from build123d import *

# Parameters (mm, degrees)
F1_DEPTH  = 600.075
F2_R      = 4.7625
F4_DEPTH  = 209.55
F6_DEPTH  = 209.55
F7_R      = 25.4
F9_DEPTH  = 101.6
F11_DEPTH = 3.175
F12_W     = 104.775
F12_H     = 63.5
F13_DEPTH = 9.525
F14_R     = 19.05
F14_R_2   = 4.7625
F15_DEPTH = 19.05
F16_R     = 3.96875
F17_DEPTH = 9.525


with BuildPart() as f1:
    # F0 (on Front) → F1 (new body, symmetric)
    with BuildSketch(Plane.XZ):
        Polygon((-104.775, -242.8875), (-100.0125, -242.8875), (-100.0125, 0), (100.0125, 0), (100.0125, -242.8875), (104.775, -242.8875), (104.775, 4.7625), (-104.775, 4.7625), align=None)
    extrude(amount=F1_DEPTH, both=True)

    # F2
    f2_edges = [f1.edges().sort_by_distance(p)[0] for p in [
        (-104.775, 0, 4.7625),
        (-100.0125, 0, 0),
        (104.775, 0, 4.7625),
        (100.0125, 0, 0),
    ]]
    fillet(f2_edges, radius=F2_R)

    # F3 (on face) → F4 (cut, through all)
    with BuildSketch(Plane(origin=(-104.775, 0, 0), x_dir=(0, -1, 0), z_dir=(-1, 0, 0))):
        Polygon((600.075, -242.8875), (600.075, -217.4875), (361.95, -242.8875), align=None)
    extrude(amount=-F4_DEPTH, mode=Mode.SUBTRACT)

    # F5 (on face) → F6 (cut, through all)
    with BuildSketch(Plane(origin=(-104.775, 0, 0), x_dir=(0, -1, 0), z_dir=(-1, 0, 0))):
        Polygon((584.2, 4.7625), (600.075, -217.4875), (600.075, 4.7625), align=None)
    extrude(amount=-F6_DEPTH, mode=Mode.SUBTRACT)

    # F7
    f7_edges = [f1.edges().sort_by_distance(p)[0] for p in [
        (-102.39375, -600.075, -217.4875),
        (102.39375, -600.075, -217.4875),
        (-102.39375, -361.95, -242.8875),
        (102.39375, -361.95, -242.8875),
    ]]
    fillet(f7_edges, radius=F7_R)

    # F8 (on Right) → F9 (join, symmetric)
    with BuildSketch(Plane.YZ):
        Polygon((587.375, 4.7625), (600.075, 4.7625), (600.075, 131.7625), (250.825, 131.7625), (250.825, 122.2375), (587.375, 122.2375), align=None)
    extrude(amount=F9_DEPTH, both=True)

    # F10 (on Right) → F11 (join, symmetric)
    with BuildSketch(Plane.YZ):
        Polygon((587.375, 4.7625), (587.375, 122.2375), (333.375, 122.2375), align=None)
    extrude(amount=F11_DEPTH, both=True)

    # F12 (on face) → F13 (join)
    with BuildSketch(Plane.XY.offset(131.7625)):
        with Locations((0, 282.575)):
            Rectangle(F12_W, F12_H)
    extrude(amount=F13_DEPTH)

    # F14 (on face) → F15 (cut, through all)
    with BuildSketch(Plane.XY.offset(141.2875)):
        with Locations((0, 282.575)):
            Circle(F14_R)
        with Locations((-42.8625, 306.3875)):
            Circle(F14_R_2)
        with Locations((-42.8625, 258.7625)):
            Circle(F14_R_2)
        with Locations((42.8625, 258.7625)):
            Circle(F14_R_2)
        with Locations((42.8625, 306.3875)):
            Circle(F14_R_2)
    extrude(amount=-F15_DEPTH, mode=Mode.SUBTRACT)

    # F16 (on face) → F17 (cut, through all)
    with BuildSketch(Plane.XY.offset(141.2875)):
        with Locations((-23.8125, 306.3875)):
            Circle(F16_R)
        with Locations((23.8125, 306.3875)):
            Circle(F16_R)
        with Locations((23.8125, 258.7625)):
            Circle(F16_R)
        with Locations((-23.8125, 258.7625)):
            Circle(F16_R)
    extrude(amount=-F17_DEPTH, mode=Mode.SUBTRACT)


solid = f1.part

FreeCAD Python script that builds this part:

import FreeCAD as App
import Part
import Sketcher
Q = App.Units.Quantity


def edges_at(feature, points):
    """Names of the edges that pass closest to the given points."""
    edges = feature.Shape.Edges
    near = lambda p: min(range(len(edges)), key=lambda i: edges[i].distToShape(Part.Vertex(*p))[0])
    return sorted({f"Edge{near(p) + 1}" for p in points})

doc = App.newDocument("Part")
body = doc.addObject("PartDesign::Body", "Body")

# Sketch on XZ plane
sketch1 = body.newObject("Sketcher::SketchObject", "Sketch")
sketch1.AttachmentSupport = (doc.getObject("XZ_Plane"), [""])
sketch1.MapMode = "FlatFace"
sketch1.addGeometry([
    Part.LineSegment(App.Vector(-104.775, -242.8875, 0), App.Vector(-100.0125, -242.8875, 0)),  # 0
    Part.LineSegment(App.Vector(-100.0125, -242.8875, 0), App.Vector(-100.0125, 0, 0)),  # 1
    Part.LineSegment(App.Vector(-100.0125, 0, 0), App.Vector(100.0125, 0, 0)),  # 2
    Part.LineSegment(App.Vector(100.0125, 0, 0), App.Vector(100.0125, -242.8875, 0)),  # 3
    Part.LineSegment(App.Vector(100.0125, -242.8875, 0), App.Vector(104.775, -242.8875, 0)),  # 4
    Part.LineSegment(App.Vector(104.775, -242.8875, 0), App.Vector(104.775, 4.7625, 0)),  # 5
    Part.LineSegment(App.Vector(104.775, 4.7625, 0), App.Vector(-104.775, 4.7625, 0)),  # 6
    Part.LineSegment(App.Vector(-104.775, 4.7625, 0), App.Vector(-104.775, -242.8875, 0)),  # 7
], False)
sketch1.addConstraint([
    Sketcher.Constraint("Coincident", 0, 2, 1, 1),
    Sketcher.Constraint("Coincident", 1, 2, 2, 1),
    Sketcher.Constraint("Coincident", 2, 2, 3, 1),
    Sketcher.Constraint("Coincident", 3, 2, 4, 1),
    Sketcher.Constraint("Coincident", 4, 2, 5, 1),
    Sketcher.Constraint("Coincident", 5, 2, 6, 1),
    Sketcher.Constraint("Coincident", 6, 2, 7, 1),
    Sketcher.Constraint("Coincident", 7, 2, 0, 1),
    Sketcher.Constraint("Horizontal", 0),
    Sketcher.Constraint("Vertical", 1),
    Sketcher.Constraint("Horizontal", 2),
    Sketcher.Constraint("Vertical", 3),
    Sketcher.Constraint("Horizontal", 4),
    Sketcher.Constraint("Vertical", 5),
    Sketcher.Constraint("Horizontal", 6),
    Sketcher.Constraint("Vertical", 7),
    Sketcher.Constraint("Symmetric", 1, 2, 2, 2, -1, 1),
    Sketcher.Constraint("Symmetric", 4, 2, 7, 2, -2),
    Sketcher.Constraint("DistanceX", 6, 2, 6, 1, Q("8.25 in")),
    Sketcher.Constraint("DistanceY", 5, 1, 5, 2, Q("9.75 in")),
    Sketcher.Constraint("DistanceX", 0, 1, 0, 2, Q("0.1875 in")),
    Sketcher.Constraint("DistanceY", 1, 1, 1, 2, Q("9.5625 in")),
])
pad1 = body.newObject("PartDesign::Pad", "Pad")
pad1.Profile = sketch1
pad1.Length = Q("47.25 in")
pad1.Midplane = True
doc.recompute()

fillet = body.newObject("PartDesign::Fillet", "Fillet")
fillet.Base = (pad1, edges_at(pad1, [
    (-104.775, 0, 4.763),
    (-100.013, 0, 0),
    (104.775, 0, 4.763),
    (100.013, 0, 0),
]))
fillet.Radius = Q("0.1875 in")

# Sketch on YZ plane
sketch2 = body.newObject("Sketcher::SketchObject", "Sketch001")
sketch2.AttachmentSupport = (doc.getObject("YZ_Plane"), [""])
sketch2.MapMode = "FlatFace"
sketch2.AttachmentOffset = App.Placement(App.Vector(0, 0, -4.125 * 25.4), App.Rotation())
sketch2.addGeometry([
    Part.LineSegment(App.Vector(-600.075, -242.8875, 0), App.Vector(-600.075, -217.4875, 0)),
    Part.LineSegment(App.Vector(-600.075, -217.4875, 0), App.Vector(-361.95, -242.8875, 0)),
    Part.LineSegment(App.Vector(-361.95, -242.8875, 0), App.Vector(-600.075, -242.8875, 0)),
], False)
sketch2.addConstraint([
    Sketcher.Constraint("Coincident", 0, 2, 1, 1),
    Sketcher.Constraint("Coincident", 1, 2, 2, 1),
    Sketcher.Constraint("Coincident", 2, 2, 0, 1),
    Sketcher.Constraint("Vertical", 0),
    Sketcher.Constraint("Horizontal", 2),
    Sketcher.Constraint("DistanceY", 0, 1, 0, 2, Q("1 in")),
    Sketcher.Constraint("DistanceX", 2, 2, 2, 1, Q("9.375 in")),
    Sketcher.Constraint("DistanceX", 1, 2, -1, 1, Q("14.25 in")),
    Sketcher.Constraint("DistanceY", 0, 2, -1, 1, Q("8.5625 in")),
])
pocket1 = body.newObject("PartDesign::Pocket", "Pocket")
pocket1.Profile = sketch2
pocket1.Type = "ThroughAll"
pocket1.Reversed = True

# Sketch on YZ plane
sketch3 = body.newObject("Sketcher::SketchObject", "Sketch002")
sketch3.AttachmentSupport = (doc.getObject("YZ_Plane"), [""])
sketch3.MapMode = "FlatFace"
sketch3.AttachmentOffset = App.Placement(App.Vector(0, 0, -4.125 * 25.4), App.Rotation())
sketch3.addGeometry([
    Part.LineSegment(App.Vector(-584.2, 4.7625, 0), App.Vector(-600.075, -217.4875, 0)),
    Part.LineSegment(App.Vector(-600.075, -217.4875, 0), App.Vector(-600.075, 4.7625, 0)),
    Part.LineSegment(App.Vector(-600.075, 4.7625, 0), App.Vector(-584.2, 4.7625, 0)),
], False)
sketch3.addConstraint([
    Sketcher.Constraint("Coincident", 0, 2, 1, 1),
    Sketcher.Constraint("Coincident", 1, 2, 2, 1),
    Sketcher.Constraint("Coincident", 2, 2, 0, 1),
    Sketcher.Constraint("Vertical", 1),
    Sketcher.Constraint("Horizontal", 2),
    Sketcher.Constraint("DistanceX", 2, 2, -1, 1, Q("23 in")),
    Sketcher.Constraint("DistanceY", 1, 1, 1, 2, Q("8.75 in")),
    Sketcher.Constraint("DistanceX", 2, 1, 2, 2, Q("0.625 in")),
    Sketcher.Constraint("DistanceY", 0, 2, -1, 1, Q("8.5625 in")),
])
pocket2 = body.newObject("PartDesign::Pocket", "Pocket001")
pocket2.Profile = sketch3
pocket2.Type = "ThroughAll"
pocket2.Reversed = True
doc.recompute()

fillet2 = body.newObject("PartDesign::Fillet", "Fillet001")
fillet2.Base = (pocket2, edges_at(pocket2, [
    (-102.394, -600.075, -217.488),
    (102.394, -600.075, -217.488),
    (-102.394, -361.95, -242.887),
    (102.394, -361.95, -242.887),
]))
fillet2.Radius = Q("1 in")

# Sketch on YZ plane
sketch4 = body.newObject("Sketcher::SketchObject", "Sketch003")
sketch4.AttachmentSupport = (doc.getObject("YZ_Plane"), [""])
sketch4.MapMode = "FlatFace"
sketch4.addGeometry([
    Part.LineSegment(App.Vector(587.375, 4.7625, 0), App.Vector(600.075, 4.7625, 0)),  # 0
    Part.LineSegment(App.Vector(600.075, 4.7625, 0), App.Vector(600.075, 131.7625, 0)),  # 1
    Part.LineSegment(App.Vector(600.075, 131.7625, 0), App.Vector(250.825, 131.7625, 0)),  # 2
    Part.LineSegment(App.Vector(250.825, 131.7625, 0), App.Vector(250.825, 122.2375, 0)),  # 3
    Part.LineSegment(App.Vector(250.825, 122.2375, 0), App.Vector(587.375, 122.2375, 0)),  # 4
    Part.LineSegment(App.Vector(587.375, 122.2375, 0), App.Vector(587.375, 4.7625, 0)),  # 5
], False)
sketch4.addConstraint([
    Sketcher.Constraint("Coincident", 0, 2, 1, 1),
    Sketcher.Constraint("Coincident", 1, 2, 2, 1),
    Sketcher.Constraint("Coincident", 2, 2, 3, 1),
    Sketcher.Constraint("Coincident", 3, 2, 4, 1),
    Sketcher.Constraint("Coincident", 4, 2, 5, 1),
    Sketcher.Constraint("Coincident", 5, 2, 0, 1),
    Sketcher.Constraint("Horizontal", 0),
    Sketcher.Constraint("Vertical", 1),
    Sketcher.Constraint("Horizontal", 2),
    Sketcher.Constraint("Vertical", 3),
    Sketcher.Constraint("Horizontal", 4),
    Sketcher.Constraint("Vertical", 5),
    Sketcher.Constraint("DistanceY", 1, 1, 1, 2, Q("5 in")),
    Sketcher.Constraint("DistanceX", 0, 1, 0, 2, Q("0.5 in")),
    Sketcher.Constraint("DistanceX", 2, 2, 2, 1, Q("13.75 in")),
    Sketcher.Constraint("DistanceY", 3, 2, 3, 1, Q("0.375 in")),
    Sketcher.Constraint("DistanceX", -1, 1, 0, 2, Q("23.625 in")),
    Sketcher.Constraint("DistanceY", -1, 1, 0, 2, Q("0.1875 in")),
])
pad2 = body.newObject("PartDesign::Pad", "Pad001")
pad2.Profile = sketch4
pad2.Length = Q("8 in")
pad2.Midplane = True

# Sketch on YZ plane
sketch5 = body.newObject("Sketcher::SketchObject", "Sketch004")
sketch5.AttachmentSupport = (doc.getObject("YZ_Plane"), [""])
sketch5.MapMode = "FlatFace"
sketch5.addGeometry([
    Part.LineSegment(App.Vector(587.375, 4.7625, 0), App.Vector(587.375, 122.2375, 0)),
    Part.LineSegment(App.Vector(587.375, 122.2375, 0), App.Vector(333.375, 122.2375, 0)),
    Part.LineSegment(App.Vector(333.375, 122.2375, 0), App.Vector(587.375, 4.7625, 0)),
], False)
sketch5.addConstraint([
    Sketcher.Constraint("Coincident", 0, 2, 1, 1),
    Sketcher.Constraint("Coincident", 1, 2, 2, 1),
    Sketcher.Constraint("Coincident", 2, 2, 0, 1),
    Sketcher.Constraint("Vertical", 0),
    Sketcher.Constraint("Horizontal", 1),
    Sketcher.Constraint("DistanceX", 1, 2, 1, 1, Q("10 in")),
    Sketcher.Constraint("DistanceY", 0, 1, 0, 2, Q("4.625 in")),
    Sketcher.Constraint("DistanceX", -1, 1, 0, 2, Q("23.125 in")),
    Sketcher.Constraint("DistanceY", -1, 1, 0, 2, Q("4.8125 in")),
])
pad3 = body.newObject("PartDesign::Pad", "Pad002")
pad3.Profile = sketch5
pad3.Length = Q("0.25 in")
pad3.Midplane = True

# Sketch on XY plane
sketch6 = body.newObject("Sketcher::SketchObject", "Sketch005")
sketch6.AttachmentSupport = (doc.getObject("XY_Plane"), [""])
sketch6.MapMode = "FlatFace"
sketch6.AttachmentOffset = App.Placement(App.Vector(0, 0, 5.1875 * 25.4), App.Rotation())
sketch6.addGeometry([
    Part.LineSegment(App.Vector(-52.3875, 314.325, 0), App.Vector(-52.3875, 250.825, 0)),
    Part.LineSegment(App.Vector(-52.3875, 250.825, 0), App.Vector(52.3875, 250.825, 0)),
    Part.LineSegment(App.Vector(52.3875, 250.825, 0), App.Vector(52.3875, 314.325, 0)),
    Part.LineSegment(App.Vector(52.3875, 314.325, 0), App.Vector(-52.3875, 314.325, 0)),
], False)
sketch6.addConstraint([
    Sketcher.Constraint("Coincident", 0, 2, 1, 1),
    Sketcher.Constraint("Coincident", 1, 2, 2, 1),
    Sketcher.Constraint("Coincident", 2, 2, 3, 1),
    Sketcher.Constraint("Coincident", 3, 2, 0, 1),
    Sketcher.Constraint("Vertical", 0),
    Sketcher.Constraint("Horizontal", 1),
    Sketcher.Constraint("Vertical", 2),
    Sketcher.Constraint("Horizontal", 3),
    Sketcher.Constraint("DistanceY", 0, 2, 0, 1, Q("2.5 in")),
    Sketcher.Constraint("DistanceX", 1, 1, 1, 2, Q("4.125 in")),
    Sketcher.Constraint("DistanceX", 0, 2, -1, 1, Q("2.0625 in")),
    Sketcher.Constraint("DistanceY", -1, 1, 0, 2, Q("9.875 in")),
])
pad4 = body.newObject("PartDesign::Pad", "Pad003")
pad4.Profile = sketch6
pad4.Length = Q("0.375 in")

# Sketch on XY plane
sketch7 = body.newObject("Sketcher::SketchObject", "Sketch006")
sketch7.AttachmentSupport = (doc.getObject("XY_Plane"), [""])
sketch7.MapMode = "FlatFace"
sketch7.AttachmentOffset = App.Placement(App.Vector(0, 0, 5.5625 * 25.4), App.Rotation())
sketch7.addGeometry([
    Part.Circle(App.Vector(0, 282.575, 0), App.Vector(0, 0, 1), 19.05),  # 0
    Part.Circle(App.Vector(-42.8625, 306.3875, 0), App.Vector(0, 0, 1), 4.7625),  # 1
    Part.Circle(App.Vector(-42.8625, 258.7625, 0), App.Vector(0, 0, 1), 4.7625),  # 2
    Part.Circle(App.Vector(42.8625, 258.7625, 0), App.Vector(0, 0, 1), 4.7625),  # 3
    Part.Circle(App.Vector(42.8625, 306.3875, 0), App.Vector(0, 0, 1), 4.7625),  # 4
], False)
sketch7.addConstraint([
    Sketcher.Constraint("Equal", 1, 2),
    Sketcher.Constraint("Equal", 2, 3),
    Sketcher.Constraint("Equal", 3, 4),
    Sketcher.Constraint("Symmetric", 2, 3, 3, 3, -2),
    Sketcher.Constraint("Symmetric", 1, 3, 4, 3, -2),
    Sketcher.Constraint("PointOnObject", 0, 3, -2),
    Sketcher.Constraint("Vertical", 1, 3, 2, 3),
    Sketcher.Constraint("Diameter", 0, Q("1.5 in")),
    Sketcher.Constraint("Diameter", 1, Q("0.375 in")),
    Sketcher.Constraint("DistanceY", -1, 1, 0, 3, Q("11.125 in")),
    Sketcher.Constraint("DistanceX", 1, 3, -1, 1, Q("1.6875 in")),
    Sketcher.Constraint("DistanceY", -1, 1, 1, 3, Q("12.0625 in")),
    Sketcher.Constraint("DistanceY", -1, 1, 2, 3, Q("10.1875 in")),
])
pocket3 = body.newObject("PartDesign::Pocket", "Pocket002")
pocket3.Profile = sketch7
pocket3.Length = Q("0.75 in")

# Sketch on XY plane
sketch8 = body.newObject("Sketcher::SketchObject", "Sketch007")
sketch8.AttachmentSupport = (doc.getObject("XY_Plane"), [""])
sketch8.MapMode = "FlatFace"
sketch8.AttachmentOffset = App.Placement(App.Vector(0, 0, 5.5625 * 25.4), App.Rotation())
sketch8.addGeometry([
    Part.Circle(App.Vector(-23.8125, 306.3875, 0), App.Vector(0, 0, 1), 3.96875),
    Part.Circle(App.Vector(23.8125, 306.3875, 0), App.Vector(0, 0, 1), 3.96875),
    Part.Circle(App.Vector(23.8125, 258.7625, 0), App.Vector(0, 0, 1), 3.96875),
    Part.Circle(App.Vector(-23.8125, 258.7625, 0), App.Vector(0, 0, 1), 3.96875),
], False)
sketch8.addConstraint([
    Sketcher.Constraint("Equal", 0, 1),
    Sketcher.Constraint("Equal", 1, 2),
    Sketcher.Constraint("Equal", 2, 3),
    Sketcher.Constraint("Symmetric", 0, 3, 1, 3, -2),
    Sketcher.Constraint("Symmetric", 2, 3, 3, 3, -2),
    Sketcher.Constraint("Vertical", 1, 3, 2, 3),
    Sketcher.Constraint("Diameter", 0, Q("0.3125 in")),
    Sketcher.Constraint("DistanceX", 0, 3, -1, 1, Q("0.9375 in")),
    Sketcher.Constraint("DistanceY", -1, 1, 0, 3, Q("12.0625 in")),
    Sketcher.Constraint("DistanceY", -1, 1, 2, 3, Q("10.1875 in")),
])
pocket4 = body.newObject("PartDesign::Pocket", "Pocket003")
pocket4.Profile = sketch8
pocket4.Length = Q("0.375 in")

doc.recompute()
